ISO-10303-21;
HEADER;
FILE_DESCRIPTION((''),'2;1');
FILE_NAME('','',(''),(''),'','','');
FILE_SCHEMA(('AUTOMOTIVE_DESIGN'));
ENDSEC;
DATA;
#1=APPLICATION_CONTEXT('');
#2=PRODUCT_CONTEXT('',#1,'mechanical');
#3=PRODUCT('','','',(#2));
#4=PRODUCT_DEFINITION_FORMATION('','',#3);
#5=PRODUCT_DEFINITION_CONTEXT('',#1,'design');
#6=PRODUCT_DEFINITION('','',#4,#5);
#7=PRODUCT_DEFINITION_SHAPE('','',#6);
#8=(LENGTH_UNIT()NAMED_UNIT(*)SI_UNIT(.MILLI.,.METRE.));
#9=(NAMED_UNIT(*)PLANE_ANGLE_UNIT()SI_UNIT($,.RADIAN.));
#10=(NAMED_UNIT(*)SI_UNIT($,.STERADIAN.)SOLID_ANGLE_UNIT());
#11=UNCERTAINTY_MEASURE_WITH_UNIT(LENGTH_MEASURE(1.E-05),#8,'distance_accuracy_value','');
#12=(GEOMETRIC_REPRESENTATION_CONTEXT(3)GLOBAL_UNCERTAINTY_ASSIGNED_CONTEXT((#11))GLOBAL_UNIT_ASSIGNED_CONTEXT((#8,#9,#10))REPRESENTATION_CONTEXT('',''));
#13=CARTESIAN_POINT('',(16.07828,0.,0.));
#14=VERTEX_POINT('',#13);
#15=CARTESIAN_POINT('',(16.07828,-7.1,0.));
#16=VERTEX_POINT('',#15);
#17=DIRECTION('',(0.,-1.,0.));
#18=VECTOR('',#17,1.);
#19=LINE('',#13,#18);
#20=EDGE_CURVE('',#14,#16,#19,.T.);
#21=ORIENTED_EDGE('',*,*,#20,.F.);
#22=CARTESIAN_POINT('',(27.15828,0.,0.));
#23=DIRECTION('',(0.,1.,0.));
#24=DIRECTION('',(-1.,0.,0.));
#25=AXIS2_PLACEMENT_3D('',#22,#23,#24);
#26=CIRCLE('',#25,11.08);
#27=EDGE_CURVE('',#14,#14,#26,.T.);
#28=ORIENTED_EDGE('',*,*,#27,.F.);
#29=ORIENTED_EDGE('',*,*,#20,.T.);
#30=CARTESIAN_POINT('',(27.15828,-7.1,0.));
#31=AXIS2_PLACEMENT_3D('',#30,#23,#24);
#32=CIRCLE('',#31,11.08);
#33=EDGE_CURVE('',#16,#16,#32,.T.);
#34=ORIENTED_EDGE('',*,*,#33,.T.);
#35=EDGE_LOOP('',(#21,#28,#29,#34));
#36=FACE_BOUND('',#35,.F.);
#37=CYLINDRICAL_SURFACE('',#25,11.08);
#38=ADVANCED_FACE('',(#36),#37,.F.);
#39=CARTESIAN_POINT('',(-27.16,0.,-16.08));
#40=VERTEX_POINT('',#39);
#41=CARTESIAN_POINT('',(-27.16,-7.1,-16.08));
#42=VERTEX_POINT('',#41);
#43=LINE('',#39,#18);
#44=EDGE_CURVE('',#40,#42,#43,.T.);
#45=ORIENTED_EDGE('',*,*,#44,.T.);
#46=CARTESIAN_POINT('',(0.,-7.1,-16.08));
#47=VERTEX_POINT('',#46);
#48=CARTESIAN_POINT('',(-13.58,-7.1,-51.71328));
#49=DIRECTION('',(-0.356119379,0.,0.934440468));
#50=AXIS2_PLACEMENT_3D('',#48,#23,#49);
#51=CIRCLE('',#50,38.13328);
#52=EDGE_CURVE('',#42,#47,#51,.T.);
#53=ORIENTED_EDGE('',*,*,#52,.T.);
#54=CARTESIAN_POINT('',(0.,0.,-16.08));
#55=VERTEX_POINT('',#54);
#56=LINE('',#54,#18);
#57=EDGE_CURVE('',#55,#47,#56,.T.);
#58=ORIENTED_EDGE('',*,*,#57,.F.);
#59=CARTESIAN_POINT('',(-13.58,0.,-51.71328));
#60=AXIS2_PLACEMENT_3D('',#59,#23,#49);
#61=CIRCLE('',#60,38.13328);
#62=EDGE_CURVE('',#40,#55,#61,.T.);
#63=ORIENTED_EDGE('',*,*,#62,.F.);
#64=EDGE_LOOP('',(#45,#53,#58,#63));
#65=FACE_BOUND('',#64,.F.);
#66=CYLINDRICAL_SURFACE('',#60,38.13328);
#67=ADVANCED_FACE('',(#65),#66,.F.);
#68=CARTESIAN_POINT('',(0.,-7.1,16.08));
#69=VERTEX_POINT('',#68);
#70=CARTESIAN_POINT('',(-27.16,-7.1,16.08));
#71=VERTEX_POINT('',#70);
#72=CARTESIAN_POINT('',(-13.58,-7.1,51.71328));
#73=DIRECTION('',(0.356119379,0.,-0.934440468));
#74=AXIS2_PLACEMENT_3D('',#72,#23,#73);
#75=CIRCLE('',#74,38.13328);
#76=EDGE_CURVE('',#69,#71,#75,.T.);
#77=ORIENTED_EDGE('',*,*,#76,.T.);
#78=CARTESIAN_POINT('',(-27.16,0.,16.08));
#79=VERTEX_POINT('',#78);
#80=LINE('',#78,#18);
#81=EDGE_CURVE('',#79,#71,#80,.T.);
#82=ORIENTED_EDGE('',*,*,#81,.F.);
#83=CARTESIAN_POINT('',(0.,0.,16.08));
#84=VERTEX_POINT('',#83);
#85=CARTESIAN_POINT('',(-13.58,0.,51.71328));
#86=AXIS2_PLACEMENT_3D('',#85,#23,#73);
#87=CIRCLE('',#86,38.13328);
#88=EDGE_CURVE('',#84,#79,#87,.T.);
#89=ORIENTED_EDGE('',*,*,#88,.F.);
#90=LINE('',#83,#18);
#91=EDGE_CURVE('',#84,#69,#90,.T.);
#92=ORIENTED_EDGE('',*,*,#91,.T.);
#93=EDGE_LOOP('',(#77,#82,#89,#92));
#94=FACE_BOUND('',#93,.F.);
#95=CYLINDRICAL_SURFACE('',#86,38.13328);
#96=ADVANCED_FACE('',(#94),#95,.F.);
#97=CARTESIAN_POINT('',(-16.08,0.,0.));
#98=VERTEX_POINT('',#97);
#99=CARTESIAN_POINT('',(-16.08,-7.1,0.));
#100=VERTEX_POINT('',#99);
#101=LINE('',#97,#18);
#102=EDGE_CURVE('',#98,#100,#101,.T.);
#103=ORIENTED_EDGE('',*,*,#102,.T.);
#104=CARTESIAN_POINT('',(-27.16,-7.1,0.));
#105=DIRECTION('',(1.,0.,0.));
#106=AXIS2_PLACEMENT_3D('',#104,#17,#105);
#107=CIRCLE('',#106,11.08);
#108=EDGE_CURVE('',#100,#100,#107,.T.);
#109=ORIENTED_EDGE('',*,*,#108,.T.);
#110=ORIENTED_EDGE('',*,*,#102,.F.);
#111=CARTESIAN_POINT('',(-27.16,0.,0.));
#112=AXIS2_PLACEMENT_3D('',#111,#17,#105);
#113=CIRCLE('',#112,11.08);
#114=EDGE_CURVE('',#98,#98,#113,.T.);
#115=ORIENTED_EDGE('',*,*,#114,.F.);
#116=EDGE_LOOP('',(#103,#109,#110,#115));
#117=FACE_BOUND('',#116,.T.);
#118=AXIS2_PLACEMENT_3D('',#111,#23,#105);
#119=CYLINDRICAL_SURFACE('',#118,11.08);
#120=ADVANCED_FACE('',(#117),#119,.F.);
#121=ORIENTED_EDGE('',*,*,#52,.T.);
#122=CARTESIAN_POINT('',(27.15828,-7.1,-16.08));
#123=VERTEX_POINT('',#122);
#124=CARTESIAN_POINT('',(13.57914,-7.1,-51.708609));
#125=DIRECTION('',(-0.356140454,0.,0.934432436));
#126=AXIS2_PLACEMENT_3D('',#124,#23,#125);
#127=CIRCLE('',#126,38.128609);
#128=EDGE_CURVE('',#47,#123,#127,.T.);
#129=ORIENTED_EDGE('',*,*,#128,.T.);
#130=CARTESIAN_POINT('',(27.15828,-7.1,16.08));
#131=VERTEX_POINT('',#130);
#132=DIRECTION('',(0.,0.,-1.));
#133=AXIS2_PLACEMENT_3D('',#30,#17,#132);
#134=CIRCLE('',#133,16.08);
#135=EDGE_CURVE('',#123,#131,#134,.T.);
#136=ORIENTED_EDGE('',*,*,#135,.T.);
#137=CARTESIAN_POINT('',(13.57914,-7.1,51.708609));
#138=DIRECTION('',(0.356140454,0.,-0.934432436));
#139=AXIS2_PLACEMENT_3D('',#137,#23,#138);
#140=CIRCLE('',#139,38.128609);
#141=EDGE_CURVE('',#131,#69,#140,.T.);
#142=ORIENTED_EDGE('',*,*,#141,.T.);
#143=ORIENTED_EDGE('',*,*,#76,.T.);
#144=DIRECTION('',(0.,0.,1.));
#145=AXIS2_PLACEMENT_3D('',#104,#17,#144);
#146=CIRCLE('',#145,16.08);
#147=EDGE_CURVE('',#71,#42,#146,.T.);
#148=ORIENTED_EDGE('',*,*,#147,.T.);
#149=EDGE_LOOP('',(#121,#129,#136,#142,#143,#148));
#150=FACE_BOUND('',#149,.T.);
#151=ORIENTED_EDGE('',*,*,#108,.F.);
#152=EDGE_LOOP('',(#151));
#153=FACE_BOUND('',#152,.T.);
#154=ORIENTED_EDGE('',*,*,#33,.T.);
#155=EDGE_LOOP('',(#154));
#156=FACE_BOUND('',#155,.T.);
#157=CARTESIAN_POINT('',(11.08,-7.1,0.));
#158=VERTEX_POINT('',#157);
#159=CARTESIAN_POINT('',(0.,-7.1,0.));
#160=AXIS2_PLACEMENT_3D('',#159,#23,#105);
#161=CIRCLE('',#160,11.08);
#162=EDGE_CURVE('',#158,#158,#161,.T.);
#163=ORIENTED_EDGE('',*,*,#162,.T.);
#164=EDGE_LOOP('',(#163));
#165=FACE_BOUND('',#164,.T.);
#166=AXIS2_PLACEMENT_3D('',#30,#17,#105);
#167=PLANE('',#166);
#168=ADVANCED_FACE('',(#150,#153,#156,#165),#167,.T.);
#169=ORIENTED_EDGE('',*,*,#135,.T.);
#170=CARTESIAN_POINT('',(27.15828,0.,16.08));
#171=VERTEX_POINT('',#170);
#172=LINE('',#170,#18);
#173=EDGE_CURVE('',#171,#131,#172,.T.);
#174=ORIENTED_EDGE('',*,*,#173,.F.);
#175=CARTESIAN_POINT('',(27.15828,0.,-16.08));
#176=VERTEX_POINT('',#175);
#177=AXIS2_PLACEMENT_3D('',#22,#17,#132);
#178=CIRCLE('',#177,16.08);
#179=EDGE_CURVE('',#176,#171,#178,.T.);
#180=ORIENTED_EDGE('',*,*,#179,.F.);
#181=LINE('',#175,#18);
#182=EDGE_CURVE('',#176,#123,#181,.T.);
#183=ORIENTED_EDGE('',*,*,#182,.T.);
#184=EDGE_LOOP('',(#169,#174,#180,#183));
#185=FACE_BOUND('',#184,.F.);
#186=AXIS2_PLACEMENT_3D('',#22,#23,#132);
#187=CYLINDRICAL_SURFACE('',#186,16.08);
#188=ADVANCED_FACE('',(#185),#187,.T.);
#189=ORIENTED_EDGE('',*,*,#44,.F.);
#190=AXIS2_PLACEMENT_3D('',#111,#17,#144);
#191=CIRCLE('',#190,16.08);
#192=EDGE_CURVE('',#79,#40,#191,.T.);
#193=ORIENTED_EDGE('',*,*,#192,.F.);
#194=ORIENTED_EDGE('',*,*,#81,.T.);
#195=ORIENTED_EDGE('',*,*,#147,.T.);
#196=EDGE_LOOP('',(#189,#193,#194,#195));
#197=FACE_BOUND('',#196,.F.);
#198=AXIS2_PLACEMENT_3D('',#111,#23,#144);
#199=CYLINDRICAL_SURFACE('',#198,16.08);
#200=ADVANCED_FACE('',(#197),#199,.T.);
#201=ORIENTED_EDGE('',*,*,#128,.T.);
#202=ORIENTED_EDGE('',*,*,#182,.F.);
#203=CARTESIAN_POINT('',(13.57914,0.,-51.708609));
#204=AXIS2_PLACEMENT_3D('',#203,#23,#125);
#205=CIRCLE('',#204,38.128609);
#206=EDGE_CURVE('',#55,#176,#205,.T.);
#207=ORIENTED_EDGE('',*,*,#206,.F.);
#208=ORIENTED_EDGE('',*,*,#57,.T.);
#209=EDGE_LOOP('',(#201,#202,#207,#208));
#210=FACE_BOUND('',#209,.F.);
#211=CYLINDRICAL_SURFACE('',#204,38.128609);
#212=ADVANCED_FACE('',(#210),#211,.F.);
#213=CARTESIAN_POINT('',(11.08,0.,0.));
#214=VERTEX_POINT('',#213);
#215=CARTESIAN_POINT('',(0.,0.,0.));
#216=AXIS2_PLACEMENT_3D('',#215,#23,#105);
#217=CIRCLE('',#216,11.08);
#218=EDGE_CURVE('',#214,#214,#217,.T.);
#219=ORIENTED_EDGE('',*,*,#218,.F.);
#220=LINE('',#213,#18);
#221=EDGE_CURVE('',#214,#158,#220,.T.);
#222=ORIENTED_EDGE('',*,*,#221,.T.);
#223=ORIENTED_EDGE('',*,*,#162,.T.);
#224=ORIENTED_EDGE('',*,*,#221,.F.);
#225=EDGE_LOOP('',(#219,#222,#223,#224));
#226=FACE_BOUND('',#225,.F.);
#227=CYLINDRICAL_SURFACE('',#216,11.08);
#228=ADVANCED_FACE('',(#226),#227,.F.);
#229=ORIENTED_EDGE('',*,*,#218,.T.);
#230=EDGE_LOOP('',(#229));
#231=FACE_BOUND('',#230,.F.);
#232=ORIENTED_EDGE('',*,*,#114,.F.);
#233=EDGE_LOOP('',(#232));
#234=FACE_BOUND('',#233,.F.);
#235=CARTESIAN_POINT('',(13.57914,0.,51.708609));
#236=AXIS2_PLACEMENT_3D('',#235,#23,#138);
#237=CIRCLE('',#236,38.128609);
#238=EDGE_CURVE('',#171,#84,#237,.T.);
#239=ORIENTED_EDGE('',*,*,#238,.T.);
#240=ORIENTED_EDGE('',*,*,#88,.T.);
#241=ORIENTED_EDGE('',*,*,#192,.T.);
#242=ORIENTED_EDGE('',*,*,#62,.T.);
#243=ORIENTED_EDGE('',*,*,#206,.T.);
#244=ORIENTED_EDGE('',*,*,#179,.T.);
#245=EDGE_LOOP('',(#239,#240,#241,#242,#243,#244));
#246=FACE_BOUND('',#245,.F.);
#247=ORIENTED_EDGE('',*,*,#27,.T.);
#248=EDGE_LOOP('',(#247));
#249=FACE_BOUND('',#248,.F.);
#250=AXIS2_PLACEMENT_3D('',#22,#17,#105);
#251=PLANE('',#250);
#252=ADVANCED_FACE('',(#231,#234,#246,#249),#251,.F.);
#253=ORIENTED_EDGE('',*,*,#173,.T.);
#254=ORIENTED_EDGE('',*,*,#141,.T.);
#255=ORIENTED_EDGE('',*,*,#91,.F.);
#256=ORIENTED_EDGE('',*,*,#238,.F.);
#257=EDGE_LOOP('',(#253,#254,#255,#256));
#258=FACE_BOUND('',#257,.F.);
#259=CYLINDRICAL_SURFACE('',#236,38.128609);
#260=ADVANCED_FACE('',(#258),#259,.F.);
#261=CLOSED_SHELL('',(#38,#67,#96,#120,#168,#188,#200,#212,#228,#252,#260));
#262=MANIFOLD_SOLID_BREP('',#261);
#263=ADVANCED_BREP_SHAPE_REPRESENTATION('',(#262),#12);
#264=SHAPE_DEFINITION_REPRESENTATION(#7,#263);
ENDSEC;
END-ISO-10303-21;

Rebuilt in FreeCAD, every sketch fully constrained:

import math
import FreeCAD as App
import Part
import Sketcher

V = App.Vector
Q = App.Units.Quantity

doc = App.newDocument("Part")
body = doc.addObject("PartDesign::Body", "Body")

# Sketch on XZ plane
sketch1 = body.newObject("Sketcher::SketchObject", "Sketch")
sketch1.AttachmentSupport = (doc.getObject("XZ_Plane"), [""])
sketch1.MapMode = "FlatFace"
sketch1.addGeometry(Part.ArcOfCircle(Part.Circle(V(-14, 52, 0), V(0, 0, 1), 38), math.radians(-111), math.radians(-69)), False)
sketch1.addGeometry(Part.ArcOfCircle(Part.Circle(V(-27, 0, 0), V(0, 0, 1), 16), math.radians(90), math.radians(270)), False)
sketch1.addGeometry(Part.ArcOfCircle(Part.Circle(V(-14, -52, 0), V(0, 0, 1), 38), math.radians(69), math.radians(111)), False)
sketch1.addGeometry(Part.ArcOfCircle(Part.Circle(V(14, -52, 0), V(0, 0, 1), 38), math.radians(69), math.radians(111)), False)
sketch1.addGeometry(Part.ArcOfCircle(Part.Circle(V(27, 0, 0), V(0, 0, 1), 16), math.radians(-90), math.radians(90)), False)
sketch1.addGeometry(Part.ArcOfCircle(Part.Circle(V(14, 52, 0), V(0, 0, 1), 38), math.radians(-111), math.radians(-69)), False)
sketch1.addGeometry(Part.Circle(V(27, 0, 0), V(0, 0, 1), 11), False)
sketch1.addGeometry(Part.Circle(V(-27, 0, 0), V(0, 0, 1), 11), False)
sketch1.addGeometry(Part.Circle(V(0, 0, 0), V(0, 0, 1), 11), False)
sketch1.addConstraint(Sketcher.Constraint("Coincident", 0, 1, 1, 1))
sketch1.addConstraint(Sketcher.Constraint("Coincident", 1, 2, 2, 2))
sketch1.addConstraint(Sketcher.Constraint("Coincident", 2, 1, 3, 2))
sketch1.addConstraint(Sketcher.Constraint("Coincident", 3, 1, 4, 1))
sketch1.addConstraint(Sketcher.Constraint("Coincident", 4, 2, 5, 2))
sketch1.addConstraint(Sketcher.Constraint("Coincident", 5, 1, 0, 2))
sketch1.addConstraint(Sketcher.Constraint("Coincident", 8, 3, -1, 1))
sketch1.addConstraint(Sketcher.Constraint("Coincident", 6, 3, 4, 3))
sketch1.addConstraint(Sketcher.Constraint("Coincident", 7, 3, 1, 3))
sketch1.addConstraint(Sketcher.Constraint("Equal", 0, 2))
sketch1.addConstraint(Sketcher.Constraint("Equal", 1, 4))
sketch1.addConstraint(Sketcher.Constraint("Equal", 3, 5))
sketch1.addConstraint(Sketcher.Constraint("Equal", 6, 7))
sketch1.addConstraint(Sketcher.Constraint("Equal", 7, 8))
sketch1.addConstraint(Sketcher.Constraint("Symmetric", 2, 1, 5, 1, -1, 1))
sketch1.addConstraint(Sketcher.Constraint("Symmetric", 0, 3, 2, 3, -1))
sketch1.addConstraint(Sketcher.Constraint("Symmetric", 3, 1, 4, 2, -1))
sketch1.addConstraint(Sketcher.Constraint("PointOnObject", 1, 3, -1))
sketch1.addConstraint(Sketcher.Constraint("Horizontal", 1, 2, 2, 1))
sketch1.addConstraint(Sketcher.Constraint("Vertical", 7, 3, 0, 1))
sketch1.addConstraint(Sketcher.Constraint("Vertical", 6, 3, 3, 1))
sketch1.addConstraint(Sketcher.Constraint("Diameter", 6, Q("22.16 mm")))
sketch1.addConstraint(Sketcher.Constraint("Radius", 1, Q("16.08 mm")))
sketch1.addConstraint(Sketcher.Constraint("DistanceX", 0, 3, -1, 1, Q("13.58 mm")))
sketch1.addConstraint(Sketcher.Constraint("Radius", 0, Q("38.13328 mm")))
sketch1.addConstraint(Sketcher.Constraint("Radius", 3, Q("38.128609 mm")))
sketch1.addConstraint(Sketcher.Constraint("DistanceX", -1, 1, 3, 3, Q("13.57914 mm")))
pad1 = body.newObject("PartDesign::Pad", "Pad")
pad1.Profile = sketch1
pad1.Length = 7.1

doc.recompute()
